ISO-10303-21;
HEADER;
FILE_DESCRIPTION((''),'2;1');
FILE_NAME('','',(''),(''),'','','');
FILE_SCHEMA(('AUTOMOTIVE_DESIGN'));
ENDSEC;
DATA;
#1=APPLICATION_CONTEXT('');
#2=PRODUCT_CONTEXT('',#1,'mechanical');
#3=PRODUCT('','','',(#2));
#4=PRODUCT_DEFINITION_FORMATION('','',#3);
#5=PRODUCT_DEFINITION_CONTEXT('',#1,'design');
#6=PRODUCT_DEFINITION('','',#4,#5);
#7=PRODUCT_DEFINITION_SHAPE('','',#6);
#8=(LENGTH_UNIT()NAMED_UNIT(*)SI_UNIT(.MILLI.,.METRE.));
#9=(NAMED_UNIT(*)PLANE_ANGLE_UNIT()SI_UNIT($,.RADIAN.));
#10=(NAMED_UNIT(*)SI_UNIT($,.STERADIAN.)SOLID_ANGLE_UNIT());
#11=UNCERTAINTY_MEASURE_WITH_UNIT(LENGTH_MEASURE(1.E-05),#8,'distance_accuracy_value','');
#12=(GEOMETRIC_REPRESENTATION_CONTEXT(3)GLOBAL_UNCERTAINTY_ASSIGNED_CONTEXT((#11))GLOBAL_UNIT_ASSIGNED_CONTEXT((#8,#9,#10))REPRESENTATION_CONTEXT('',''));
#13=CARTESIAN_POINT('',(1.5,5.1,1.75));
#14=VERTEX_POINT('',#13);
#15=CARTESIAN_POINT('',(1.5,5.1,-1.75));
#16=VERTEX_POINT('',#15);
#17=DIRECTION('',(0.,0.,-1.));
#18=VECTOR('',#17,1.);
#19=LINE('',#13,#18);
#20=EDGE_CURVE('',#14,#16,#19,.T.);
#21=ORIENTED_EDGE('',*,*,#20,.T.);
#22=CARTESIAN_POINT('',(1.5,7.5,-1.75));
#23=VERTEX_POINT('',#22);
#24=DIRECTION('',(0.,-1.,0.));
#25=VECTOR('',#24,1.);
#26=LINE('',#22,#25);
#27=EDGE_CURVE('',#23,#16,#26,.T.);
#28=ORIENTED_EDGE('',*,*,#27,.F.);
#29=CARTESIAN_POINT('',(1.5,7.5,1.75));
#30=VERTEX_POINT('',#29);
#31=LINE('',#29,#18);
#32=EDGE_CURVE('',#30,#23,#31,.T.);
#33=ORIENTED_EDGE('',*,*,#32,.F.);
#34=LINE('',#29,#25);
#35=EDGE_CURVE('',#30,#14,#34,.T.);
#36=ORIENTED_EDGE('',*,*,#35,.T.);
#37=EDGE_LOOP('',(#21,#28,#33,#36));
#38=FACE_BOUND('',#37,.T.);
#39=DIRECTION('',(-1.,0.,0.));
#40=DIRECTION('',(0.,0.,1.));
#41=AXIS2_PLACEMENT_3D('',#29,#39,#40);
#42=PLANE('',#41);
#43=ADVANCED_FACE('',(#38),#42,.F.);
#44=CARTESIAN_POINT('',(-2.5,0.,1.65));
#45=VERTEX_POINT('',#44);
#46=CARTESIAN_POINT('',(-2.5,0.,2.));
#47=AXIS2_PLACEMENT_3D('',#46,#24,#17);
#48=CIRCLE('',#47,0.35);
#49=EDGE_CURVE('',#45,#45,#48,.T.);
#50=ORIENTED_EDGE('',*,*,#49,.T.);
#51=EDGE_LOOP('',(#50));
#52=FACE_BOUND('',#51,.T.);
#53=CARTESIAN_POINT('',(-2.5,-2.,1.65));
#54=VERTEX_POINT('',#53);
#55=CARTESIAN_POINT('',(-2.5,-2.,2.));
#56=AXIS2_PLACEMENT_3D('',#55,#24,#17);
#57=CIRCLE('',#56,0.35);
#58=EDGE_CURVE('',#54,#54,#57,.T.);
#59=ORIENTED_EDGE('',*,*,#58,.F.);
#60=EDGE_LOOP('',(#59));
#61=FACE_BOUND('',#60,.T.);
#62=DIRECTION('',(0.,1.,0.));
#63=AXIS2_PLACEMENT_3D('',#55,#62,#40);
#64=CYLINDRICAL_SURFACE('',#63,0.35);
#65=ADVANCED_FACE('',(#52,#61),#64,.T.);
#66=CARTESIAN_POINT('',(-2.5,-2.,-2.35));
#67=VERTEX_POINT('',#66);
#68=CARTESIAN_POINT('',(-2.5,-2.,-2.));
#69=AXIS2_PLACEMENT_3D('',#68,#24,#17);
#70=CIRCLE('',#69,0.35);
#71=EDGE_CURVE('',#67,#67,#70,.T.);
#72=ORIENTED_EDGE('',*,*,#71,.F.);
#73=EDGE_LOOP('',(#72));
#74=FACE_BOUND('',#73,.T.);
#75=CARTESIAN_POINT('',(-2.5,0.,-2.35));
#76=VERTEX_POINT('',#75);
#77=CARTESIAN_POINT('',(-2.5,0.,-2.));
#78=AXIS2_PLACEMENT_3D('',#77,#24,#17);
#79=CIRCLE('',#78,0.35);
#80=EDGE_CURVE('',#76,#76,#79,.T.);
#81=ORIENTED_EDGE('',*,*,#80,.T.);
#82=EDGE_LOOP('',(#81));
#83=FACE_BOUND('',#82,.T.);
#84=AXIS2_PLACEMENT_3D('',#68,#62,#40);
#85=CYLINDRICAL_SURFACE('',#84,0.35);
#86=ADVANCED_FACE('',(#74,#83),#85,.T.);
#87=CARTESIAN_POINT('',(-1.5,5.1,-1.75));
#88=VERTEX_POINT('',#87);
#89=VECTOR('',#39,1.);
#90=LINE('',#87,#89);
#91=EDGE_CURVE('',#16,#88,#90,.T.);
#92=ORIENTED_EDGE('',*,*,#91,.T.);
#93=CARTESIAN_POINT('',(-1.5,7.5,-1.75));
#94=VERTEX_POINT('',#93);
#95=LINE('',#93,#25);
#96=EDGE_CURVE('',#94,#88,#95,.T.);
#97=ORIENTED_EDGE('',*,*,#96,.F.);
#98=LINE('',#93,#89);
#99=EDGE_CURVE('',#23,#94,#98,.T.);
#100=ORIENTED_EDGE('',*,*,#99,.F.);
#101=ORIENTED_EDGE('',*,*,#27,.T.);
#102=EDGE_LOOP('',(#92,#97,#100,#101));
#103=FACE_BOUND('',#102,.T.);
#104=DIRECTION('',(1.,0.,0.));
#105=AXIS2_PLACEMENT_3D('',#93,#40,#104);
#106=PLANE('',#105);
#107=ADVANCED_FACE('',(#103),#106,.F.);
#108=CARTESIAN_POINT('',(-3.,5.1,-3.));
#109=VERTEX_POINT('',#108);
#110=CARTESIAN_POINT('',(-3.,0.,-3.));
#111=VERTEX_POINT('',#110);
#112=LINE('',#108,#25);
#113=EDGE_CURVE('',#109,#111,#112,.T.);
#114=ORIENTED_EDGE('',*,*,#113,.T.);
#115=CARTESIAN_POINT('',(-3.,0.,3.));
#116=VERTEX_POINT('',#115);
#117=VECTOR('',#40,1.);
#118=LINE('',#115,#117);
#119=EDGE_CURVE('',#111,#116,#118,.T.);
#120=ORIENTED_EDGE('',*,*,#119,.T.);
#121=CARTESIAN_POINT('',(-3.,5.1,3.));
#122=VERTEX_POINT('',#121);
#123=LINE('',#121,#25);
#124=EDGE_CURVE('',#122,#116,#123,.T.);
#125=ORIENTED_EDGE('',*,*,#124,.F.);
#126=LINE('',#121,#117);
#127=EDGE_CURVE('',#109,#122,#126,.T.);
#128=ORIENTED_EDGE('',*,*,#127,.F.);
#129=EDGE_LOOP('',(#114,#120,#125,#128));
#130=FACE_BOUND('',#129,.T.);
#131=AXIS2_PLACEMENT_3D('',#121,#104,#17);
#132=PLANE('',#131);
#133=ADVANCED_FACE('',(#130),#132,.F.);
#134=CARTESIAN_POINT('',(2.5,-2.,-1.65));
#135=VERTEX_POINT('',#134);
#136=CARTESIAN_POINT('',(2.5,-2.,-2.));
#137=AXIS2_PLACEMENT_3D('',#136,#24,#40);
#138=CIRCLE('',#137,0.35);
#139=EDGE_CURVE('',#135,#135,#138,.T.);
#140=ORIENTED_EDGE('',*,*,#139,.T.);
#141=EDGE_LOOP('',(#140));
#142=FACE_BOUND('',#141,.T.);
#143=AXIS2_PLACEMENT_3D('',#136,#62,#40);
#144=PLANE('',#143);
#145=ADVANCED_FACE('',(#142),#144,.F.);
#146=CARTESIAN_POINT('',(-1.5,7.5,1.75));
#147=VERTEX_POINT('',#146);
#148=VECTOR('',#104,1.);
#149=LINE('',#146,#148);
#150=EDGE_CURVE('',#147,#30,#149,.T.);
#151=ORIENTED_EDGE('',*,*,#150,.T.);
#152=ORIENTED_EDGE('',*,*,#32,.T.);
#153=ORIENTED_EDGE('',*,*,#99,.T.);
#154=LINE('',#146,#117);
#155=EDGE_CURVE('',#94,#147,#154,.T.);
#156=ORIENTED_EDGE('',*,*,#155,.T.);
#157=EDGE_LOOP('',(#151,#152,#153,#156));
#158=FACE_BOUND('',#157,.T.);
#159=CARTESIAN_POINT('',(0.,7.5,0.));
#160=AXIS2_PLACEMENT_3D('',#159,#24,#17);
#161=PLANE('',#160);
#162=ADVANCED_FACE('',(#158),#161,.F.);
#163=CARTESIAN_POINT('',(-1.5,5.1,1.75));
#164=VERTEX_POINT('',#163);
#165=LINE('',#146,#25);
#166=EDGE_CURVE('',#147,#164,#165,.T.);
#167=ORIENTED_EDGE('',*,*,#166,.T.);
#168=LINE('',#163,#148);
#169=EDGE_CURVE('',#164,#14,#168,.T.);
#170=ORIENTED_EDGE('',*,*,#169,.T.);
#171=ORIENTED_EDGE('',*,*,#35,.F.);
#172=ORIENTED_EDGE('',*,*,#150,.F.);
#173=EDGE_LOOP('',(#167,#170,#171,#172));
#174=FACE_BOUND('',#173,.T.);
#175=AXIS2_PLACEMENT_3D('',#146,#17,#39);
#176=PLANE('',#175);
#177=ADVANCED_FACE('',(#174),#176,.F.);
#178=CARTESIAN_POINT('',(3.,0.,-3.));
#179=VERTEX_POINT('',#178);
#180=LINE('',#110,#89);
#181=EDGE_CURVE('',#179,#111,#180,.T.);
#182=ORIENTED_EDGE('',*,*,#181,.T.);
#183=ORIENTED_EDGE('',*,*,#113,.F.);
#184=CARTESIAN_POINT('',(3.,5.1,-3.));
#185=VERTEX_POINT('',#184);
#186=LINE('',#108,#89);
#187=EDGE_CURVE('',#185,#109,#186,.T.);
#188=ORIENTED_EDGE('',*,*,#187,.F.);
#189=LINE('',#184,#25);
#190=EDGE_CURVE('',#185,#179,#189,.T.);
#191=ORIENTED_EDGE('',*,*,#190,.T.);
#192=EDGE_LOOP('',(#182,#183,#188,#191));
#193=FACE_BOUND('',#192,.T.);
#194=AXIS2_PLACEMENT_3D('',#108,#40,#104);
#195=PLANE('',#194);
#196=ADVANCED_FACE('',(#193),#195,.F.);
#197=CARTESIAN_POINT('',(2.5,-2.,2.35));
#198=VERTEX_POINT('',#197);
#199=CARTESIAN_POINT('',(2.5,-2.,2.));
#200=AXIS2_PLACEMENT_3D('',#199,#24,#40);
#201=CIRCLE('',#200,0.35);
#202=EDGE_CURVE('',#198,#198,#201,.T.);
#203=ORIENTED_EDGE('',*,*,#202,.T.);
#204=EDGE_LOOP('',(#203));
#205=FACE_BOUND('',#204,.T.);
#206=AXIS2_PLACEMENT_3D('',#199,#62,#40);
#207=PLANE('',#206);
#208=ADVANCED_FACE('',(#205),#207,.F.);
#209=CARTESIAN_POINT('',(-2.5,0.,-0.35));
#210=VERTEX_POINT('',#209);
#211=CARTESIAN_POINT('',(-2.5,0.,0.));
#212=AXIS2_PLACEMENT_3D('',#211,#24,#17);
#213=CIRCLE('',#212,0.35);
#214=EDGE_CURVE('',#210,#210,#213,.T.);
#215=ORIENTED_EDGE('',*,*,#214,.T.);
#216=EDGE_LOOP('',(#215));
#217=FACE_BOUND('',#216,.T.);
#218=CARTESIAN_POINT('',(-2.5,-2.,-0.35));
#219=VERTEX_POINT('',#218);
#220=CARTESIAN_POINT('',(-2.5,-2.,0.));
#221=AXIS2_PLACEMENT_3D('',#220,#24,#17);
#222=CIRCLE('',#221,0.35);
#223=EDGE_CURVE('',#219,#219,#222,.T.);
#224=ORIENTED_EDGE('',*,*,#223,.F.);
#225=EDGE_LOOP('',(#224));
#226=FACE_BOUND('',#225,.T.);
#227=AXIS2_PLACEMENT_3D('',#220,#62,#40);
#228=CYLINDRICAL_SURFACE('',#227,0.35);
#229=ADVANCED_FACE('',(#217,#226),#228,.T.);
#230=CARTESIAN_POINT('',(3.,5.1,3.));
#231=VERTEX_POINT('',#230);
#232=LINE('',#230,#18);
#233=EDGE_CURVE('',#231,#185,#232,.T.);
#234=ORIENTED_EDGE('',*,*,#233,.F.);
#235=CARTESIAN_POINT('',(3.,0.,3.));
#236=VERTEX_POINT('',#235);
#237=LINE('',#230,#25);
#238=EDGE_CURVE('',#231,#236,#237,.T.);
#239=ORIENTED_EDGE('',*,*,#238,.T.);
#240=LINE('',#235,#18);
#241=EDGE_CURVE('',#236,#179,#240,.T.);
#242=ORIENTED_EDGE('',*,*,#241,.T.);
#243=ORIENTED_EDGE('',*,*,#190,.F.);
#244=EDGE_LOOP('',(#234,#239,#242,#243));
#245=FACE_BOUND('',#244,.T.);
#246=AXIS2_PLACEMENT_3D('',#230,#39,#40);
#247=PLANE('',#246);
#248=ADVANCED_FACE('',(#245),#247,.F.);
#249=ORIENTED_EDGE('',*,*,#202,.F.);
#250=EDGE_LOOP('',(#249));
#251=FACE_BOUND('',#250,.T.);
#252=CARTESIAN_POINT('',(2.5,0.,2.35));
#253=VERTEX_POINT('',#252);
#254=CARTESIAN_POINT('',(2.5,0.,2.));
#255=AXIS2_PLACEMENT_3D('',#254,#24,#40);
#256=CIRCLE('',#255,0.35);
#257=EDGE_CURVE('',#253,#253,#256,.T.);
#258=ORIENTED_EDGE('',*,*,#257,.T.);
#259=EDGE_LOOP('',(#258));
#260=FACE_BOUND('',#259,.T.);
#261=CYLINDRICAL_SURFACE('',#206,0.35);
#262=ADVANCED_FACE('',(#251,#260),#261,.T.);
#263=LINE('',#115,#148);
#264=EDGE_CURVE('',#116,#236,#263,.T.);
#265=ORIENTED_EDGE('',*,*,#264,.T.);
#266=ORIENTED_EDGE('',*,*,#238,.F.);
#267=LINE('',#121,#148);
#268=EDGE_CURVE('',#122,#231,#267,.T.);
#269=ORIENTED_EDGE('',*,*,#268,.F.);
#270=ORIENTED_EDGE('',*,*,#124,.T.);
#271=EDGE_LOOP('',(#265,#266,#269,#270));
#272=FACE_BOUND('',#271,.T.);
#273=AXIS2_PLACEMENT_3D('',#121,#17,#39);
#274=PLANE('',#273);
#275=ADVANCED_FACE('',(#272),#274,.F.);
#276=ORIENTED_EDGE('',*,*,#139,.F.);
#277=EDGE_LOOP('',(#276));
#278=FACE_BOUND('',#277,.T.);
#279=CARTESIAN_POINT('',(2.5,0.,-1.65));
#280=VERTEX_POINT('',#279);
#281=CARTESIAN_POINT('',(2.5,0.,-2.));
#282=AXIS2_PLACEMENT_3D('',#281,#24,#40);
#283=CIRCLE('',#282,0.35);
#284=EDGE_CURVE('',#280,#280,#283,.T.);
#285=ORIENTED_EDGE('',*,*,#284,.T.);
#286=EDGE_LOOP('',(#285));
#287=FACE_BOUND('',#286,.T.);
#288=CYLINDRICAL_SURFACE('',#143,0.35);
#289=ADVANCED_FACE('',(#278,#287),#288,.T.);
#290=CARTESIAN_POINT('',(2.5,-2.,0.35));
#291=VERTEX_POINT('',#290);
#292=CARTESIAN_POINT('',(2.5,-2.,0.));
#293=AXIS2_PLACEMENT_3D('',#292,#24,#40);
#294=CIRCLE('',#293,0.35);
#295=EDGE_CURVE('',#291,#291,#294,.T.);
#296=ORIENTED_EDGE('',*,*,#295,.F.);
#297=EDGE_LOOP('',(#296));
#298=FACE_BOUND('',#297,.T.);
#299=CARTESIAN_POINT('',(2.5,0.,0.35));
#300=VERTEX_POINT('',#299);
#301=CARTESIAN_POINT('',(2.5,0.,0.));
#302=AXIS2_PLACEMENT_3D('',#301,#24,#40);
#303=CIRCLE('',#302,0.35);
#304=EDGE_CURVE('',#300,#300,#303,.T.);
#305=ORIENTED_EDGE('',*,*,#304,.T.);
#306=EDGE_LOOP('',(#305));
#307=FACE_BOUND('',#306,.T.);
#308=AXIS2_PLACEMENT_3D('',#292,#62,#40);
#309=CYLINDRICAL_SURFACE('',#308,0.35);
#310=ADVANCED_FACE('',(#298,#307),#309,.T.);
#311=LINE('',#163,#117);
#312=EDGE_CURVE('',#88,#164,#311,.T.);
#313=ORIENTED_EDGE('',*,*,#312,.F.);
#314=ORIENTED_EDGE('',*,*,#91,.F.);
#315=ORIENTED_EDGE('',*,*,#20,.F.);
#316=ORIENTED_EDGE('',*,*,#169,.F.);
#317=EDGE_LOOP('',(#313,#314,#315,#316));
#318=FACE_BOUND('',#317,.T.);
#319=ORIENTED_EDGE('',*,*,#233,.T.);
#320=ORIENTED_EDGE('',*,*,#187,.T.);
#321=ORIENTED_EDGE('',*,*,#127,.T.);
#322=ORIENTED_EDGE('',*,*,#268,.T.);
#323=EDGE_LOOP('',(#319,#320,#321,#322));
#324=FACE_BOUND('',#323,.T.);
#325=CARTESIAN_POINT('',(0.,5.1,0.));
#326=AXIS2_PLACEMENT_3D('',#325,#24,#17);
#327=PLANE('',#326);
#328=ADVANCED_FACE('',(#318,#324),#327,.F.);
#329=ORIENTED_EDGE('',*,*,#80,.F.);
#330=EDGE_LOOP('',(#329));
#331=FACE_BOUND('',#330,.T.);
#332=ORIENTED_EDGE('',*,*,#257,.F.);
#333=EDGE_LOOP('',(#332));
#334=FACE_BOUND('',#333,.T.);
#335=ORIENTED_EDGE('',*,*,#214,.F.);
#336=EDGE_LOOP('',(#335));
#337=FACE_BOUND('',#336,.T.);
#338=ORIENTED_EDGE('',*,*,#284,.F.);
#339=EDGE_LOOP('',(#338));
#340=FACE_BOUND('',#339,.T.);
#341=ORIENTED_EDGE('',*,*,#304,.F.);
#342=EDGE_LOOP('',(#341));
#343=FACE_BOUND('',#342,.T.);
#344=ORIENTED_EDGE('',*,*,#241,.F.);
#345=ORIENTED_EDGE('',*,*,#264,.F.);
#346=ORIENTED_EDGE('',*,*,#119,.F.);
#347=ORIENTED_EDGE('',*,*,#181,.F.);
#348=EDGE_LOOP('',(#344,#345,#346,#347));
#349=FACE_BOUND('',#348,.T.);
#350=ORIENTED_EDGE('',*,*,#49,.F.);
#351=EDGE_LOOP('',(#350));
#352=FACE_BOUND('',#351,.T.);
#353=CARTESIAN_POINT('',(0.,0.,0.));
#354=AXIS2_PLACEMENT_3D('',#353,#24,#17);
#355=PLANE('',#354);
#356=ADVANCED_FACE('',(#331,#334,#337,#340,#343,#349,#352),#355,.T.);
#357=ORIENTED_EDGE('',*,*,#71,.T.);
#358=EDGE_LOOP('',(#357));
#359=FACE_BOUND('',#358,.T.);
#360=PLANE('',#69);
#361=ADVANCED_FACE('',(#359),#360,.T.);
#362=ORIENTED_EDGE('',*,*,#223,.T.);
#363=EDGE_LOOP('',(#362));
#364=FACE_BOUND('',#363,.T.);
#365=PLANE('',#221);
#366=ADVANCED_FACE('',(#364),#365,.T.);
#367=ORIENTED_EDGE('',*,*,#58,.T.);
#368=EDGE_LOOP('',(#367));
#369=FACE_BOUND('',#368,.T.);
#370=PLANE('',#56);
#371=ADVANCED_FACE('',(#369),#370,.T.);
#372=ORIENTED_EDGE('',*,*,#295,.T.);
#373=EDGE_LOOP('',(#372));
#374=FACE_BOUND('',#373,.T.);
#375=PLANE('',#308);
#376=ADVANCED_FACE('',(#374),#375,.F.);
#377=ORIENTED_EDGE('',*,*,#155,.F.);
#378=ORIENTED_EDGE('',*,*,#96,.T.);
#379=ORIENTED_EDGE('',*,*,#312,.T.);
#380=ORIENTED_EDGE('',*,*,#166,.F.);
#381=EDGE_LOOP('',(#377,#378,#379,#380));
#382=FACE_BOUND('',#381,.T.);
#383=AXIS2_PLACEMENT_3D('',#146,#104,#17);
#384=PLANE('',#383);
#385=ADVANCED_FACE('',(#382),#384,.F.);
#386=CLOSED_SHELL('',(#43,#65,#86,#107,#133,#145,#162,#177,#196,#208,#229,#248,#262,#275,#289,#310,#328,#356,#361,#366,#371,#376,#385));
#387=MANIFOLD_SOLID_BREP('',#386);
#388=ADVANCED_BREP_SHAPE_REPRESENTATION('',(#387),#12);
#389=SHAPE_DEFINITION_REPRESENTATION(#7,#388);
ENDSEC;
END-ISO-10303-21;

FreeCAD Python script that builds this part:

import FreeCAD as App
import Part
import Sketcher
from FreeCAD import Vector

doc = App.newDocument("Part")
body = doc.addObject("PartDesign::Body", "Body")

sketch1 = body.newObject("Sketcher::SketchObject", "Sketch")
sketch1.AttachmentSupport = (doc.getObject("XZ_Plane"), [""])
sketch1.MapMode = "FlatFace"
sketch1.addGeometry([
    Part.LineSegment(Vector(-3, -3, 0), Vector(-3, 3, 0)),
    Part.LineSegment(Vector(-3, 3, 0), Vector(3, 3, 0)),
    Part.LineSegment(Vector(3, 3, 0), Vector(3, -3, 0)),
    Part.LineSegment(Vector(3, -3, 0), Vector(-3, -3, 0)),
], False)
sketch1.addConstraint([
    Sketcher.Constraint("Coincident", 0, 2, 1, 1),
    Sketcher.Constraint("Coincident", 1, 2, 2, 1),
    Sketcher.Constraint("Coincident", 2, 2, 3, 1),
    Sketcher.Constraint("Coincident", 3, 2, 0, 1),
    Sketcher.Constraint("Vertical", 0),
    Sketcher.Constraint("Horizontal", 1),
    Sketcher.Constraint("Vertical", 2),
    Sketcher.Constraint("Horizontal", 3),
    Sketcher.Constraint("Symmetric", 0, 2, 2, 2, -1, 1),
    Sketcher.Constraint("Equal", 3, 0),
    Sketcher.Constraint("DistanceX", 1, 1, 1, 2, 6.0),
])
pad1 = body.newObject("PartDesign::Pad", "Pad")
pad1.Profile = sketch1
pad1.Length = 5.1
pad1.Reversed = True

sketch2 = body.newObject("Sketcher::SketchObject", "Sketch001")
sketch2.AttachmentSupport = (doc.getObject("XZ_Plane"), [""])
sketch2.MapMode = "FlatFace"
sketch2.AttachmentOffset = App.Placement(Vector(0, 0, -5.1), App.Rotation())
sketch2.addGeometry([
    Part.LineSegment(Vector(-1.5, -1.8, 0), Vector(-1.5, 1.8, 0)),
    Part.LineSegment(Vector(-1.5, 1.8, 0), Vector(1.5, 1.8, 0)),
    Part.LineSegment(Vector(1.5, 1.8, 0), Vector(1.5, -1.8, 0)),
    Part.LineSegment(Vector(1.5, -1.8, 0), Vector(-1.5, -1.8, 0)),
], False)
sketch2.addConstraint([
    Sketcher.Constraint("Coincident", 0, 2, 1, 1),
    Sketcher.Constraint("Coincident", 1, 2, 2, 1),
    Sketcher.Constraint("Coincident", 2, 2, 3, 1),
    Sketcher.Constraint("Coincident", 3, 2, 0, 1),
    Sketcher.Constraint("Vertical", 0),
    Sketcher.Constraint("Horizontal", 1),
    Sketcher.Constraint("Vertical", 2),
    Sketcher.Constraint("Horizontal", 3),
    Sketcher.Constraint("Symmetric", 0, 2, 2, 2, -1, 1),
    Sketcher.Constraint("DistanceX", 1, 1, 1, 2, 3.0),
    Sketcher.Constraint("DistanceY", 0, 1, 0, 2, 3.5),
])
pad2 = body.newObject("PartDesign::Pad", "Pad001")
pad2.Profile = sketch2
pad2.Length = 2.4
pad2.Reversed = True

sketch3 = body.newObject("Sketcher::SketchObject", "Sketch002")
sketch3.AttachmentSupport = (doc.getObject("XZ_Plane"), [""])
sketch3.MapMode = "FlatFace"
sketch3.addGeometry([
    Part.Circle(Vector(-2.5, 0, 0), Vector(0, 0, 1), 0.35),
    Part.Circle(Vector(-2.5, -2, 0), Vector(0, 0, 1), 0.35),
    Part.Circle(Vector(-2.5, 2, 0), Vector(0, 0, 1), 0.35),
    Part.Circle(Vector(2.5, -2, 0), Vector(0, 0, 1), 0.35),
    Part.Circle(Vector(2.5, 0, 0), Vector(0, 0, 1), 0.35),
    Part.Circle(Vector(2.5, 2, 0), Vector(0, 0, 1), 0.35),
], False)
sketch3.addConstraint([
    Sketcher.Constraint("Equal", 0, 1),
    Sketcher.Constraint("Equal", 1, 2),
    Sketcher.Constraint("Equal", 2, 3),
    Sketcher.Constraint("Equal", 3, 4),
    Sketcher.Constraint("Equal", 4, 5),
    Sketcher.Constraint("Symmetric", 2, 3, 3, 3, -1, 1),
    Sketcher.Constraint("Symmetric", 0, 3, 4, 3, -1, 1),
    Sketcher.Constraint("Symmetric", 1, 3, 5, 3, -1, 1),
    Sketcher.Constraint("Symmetric", 1, 3, 3, 3, -2),
    Sketcher.Constraint("PointOnObject", 0, 3, -1),
    Sketcher.Constraint("Vertical", 0, 3, 1, 3),
    Sketcher.Constraint("Diameter", 0, 0.7),
    Sketcher.Constraint("DistanceY", 1, 3, -1, 1, 2.0),
    Sketcher.Constraint("DistanceX", 1, 3, 3, 3, 5.0),
])
pad3 = body.newObject("PartDesign::Pad", "Pad002")
pad3.Profile = sketch3
pad3.Length = 2

doc.recompute()
